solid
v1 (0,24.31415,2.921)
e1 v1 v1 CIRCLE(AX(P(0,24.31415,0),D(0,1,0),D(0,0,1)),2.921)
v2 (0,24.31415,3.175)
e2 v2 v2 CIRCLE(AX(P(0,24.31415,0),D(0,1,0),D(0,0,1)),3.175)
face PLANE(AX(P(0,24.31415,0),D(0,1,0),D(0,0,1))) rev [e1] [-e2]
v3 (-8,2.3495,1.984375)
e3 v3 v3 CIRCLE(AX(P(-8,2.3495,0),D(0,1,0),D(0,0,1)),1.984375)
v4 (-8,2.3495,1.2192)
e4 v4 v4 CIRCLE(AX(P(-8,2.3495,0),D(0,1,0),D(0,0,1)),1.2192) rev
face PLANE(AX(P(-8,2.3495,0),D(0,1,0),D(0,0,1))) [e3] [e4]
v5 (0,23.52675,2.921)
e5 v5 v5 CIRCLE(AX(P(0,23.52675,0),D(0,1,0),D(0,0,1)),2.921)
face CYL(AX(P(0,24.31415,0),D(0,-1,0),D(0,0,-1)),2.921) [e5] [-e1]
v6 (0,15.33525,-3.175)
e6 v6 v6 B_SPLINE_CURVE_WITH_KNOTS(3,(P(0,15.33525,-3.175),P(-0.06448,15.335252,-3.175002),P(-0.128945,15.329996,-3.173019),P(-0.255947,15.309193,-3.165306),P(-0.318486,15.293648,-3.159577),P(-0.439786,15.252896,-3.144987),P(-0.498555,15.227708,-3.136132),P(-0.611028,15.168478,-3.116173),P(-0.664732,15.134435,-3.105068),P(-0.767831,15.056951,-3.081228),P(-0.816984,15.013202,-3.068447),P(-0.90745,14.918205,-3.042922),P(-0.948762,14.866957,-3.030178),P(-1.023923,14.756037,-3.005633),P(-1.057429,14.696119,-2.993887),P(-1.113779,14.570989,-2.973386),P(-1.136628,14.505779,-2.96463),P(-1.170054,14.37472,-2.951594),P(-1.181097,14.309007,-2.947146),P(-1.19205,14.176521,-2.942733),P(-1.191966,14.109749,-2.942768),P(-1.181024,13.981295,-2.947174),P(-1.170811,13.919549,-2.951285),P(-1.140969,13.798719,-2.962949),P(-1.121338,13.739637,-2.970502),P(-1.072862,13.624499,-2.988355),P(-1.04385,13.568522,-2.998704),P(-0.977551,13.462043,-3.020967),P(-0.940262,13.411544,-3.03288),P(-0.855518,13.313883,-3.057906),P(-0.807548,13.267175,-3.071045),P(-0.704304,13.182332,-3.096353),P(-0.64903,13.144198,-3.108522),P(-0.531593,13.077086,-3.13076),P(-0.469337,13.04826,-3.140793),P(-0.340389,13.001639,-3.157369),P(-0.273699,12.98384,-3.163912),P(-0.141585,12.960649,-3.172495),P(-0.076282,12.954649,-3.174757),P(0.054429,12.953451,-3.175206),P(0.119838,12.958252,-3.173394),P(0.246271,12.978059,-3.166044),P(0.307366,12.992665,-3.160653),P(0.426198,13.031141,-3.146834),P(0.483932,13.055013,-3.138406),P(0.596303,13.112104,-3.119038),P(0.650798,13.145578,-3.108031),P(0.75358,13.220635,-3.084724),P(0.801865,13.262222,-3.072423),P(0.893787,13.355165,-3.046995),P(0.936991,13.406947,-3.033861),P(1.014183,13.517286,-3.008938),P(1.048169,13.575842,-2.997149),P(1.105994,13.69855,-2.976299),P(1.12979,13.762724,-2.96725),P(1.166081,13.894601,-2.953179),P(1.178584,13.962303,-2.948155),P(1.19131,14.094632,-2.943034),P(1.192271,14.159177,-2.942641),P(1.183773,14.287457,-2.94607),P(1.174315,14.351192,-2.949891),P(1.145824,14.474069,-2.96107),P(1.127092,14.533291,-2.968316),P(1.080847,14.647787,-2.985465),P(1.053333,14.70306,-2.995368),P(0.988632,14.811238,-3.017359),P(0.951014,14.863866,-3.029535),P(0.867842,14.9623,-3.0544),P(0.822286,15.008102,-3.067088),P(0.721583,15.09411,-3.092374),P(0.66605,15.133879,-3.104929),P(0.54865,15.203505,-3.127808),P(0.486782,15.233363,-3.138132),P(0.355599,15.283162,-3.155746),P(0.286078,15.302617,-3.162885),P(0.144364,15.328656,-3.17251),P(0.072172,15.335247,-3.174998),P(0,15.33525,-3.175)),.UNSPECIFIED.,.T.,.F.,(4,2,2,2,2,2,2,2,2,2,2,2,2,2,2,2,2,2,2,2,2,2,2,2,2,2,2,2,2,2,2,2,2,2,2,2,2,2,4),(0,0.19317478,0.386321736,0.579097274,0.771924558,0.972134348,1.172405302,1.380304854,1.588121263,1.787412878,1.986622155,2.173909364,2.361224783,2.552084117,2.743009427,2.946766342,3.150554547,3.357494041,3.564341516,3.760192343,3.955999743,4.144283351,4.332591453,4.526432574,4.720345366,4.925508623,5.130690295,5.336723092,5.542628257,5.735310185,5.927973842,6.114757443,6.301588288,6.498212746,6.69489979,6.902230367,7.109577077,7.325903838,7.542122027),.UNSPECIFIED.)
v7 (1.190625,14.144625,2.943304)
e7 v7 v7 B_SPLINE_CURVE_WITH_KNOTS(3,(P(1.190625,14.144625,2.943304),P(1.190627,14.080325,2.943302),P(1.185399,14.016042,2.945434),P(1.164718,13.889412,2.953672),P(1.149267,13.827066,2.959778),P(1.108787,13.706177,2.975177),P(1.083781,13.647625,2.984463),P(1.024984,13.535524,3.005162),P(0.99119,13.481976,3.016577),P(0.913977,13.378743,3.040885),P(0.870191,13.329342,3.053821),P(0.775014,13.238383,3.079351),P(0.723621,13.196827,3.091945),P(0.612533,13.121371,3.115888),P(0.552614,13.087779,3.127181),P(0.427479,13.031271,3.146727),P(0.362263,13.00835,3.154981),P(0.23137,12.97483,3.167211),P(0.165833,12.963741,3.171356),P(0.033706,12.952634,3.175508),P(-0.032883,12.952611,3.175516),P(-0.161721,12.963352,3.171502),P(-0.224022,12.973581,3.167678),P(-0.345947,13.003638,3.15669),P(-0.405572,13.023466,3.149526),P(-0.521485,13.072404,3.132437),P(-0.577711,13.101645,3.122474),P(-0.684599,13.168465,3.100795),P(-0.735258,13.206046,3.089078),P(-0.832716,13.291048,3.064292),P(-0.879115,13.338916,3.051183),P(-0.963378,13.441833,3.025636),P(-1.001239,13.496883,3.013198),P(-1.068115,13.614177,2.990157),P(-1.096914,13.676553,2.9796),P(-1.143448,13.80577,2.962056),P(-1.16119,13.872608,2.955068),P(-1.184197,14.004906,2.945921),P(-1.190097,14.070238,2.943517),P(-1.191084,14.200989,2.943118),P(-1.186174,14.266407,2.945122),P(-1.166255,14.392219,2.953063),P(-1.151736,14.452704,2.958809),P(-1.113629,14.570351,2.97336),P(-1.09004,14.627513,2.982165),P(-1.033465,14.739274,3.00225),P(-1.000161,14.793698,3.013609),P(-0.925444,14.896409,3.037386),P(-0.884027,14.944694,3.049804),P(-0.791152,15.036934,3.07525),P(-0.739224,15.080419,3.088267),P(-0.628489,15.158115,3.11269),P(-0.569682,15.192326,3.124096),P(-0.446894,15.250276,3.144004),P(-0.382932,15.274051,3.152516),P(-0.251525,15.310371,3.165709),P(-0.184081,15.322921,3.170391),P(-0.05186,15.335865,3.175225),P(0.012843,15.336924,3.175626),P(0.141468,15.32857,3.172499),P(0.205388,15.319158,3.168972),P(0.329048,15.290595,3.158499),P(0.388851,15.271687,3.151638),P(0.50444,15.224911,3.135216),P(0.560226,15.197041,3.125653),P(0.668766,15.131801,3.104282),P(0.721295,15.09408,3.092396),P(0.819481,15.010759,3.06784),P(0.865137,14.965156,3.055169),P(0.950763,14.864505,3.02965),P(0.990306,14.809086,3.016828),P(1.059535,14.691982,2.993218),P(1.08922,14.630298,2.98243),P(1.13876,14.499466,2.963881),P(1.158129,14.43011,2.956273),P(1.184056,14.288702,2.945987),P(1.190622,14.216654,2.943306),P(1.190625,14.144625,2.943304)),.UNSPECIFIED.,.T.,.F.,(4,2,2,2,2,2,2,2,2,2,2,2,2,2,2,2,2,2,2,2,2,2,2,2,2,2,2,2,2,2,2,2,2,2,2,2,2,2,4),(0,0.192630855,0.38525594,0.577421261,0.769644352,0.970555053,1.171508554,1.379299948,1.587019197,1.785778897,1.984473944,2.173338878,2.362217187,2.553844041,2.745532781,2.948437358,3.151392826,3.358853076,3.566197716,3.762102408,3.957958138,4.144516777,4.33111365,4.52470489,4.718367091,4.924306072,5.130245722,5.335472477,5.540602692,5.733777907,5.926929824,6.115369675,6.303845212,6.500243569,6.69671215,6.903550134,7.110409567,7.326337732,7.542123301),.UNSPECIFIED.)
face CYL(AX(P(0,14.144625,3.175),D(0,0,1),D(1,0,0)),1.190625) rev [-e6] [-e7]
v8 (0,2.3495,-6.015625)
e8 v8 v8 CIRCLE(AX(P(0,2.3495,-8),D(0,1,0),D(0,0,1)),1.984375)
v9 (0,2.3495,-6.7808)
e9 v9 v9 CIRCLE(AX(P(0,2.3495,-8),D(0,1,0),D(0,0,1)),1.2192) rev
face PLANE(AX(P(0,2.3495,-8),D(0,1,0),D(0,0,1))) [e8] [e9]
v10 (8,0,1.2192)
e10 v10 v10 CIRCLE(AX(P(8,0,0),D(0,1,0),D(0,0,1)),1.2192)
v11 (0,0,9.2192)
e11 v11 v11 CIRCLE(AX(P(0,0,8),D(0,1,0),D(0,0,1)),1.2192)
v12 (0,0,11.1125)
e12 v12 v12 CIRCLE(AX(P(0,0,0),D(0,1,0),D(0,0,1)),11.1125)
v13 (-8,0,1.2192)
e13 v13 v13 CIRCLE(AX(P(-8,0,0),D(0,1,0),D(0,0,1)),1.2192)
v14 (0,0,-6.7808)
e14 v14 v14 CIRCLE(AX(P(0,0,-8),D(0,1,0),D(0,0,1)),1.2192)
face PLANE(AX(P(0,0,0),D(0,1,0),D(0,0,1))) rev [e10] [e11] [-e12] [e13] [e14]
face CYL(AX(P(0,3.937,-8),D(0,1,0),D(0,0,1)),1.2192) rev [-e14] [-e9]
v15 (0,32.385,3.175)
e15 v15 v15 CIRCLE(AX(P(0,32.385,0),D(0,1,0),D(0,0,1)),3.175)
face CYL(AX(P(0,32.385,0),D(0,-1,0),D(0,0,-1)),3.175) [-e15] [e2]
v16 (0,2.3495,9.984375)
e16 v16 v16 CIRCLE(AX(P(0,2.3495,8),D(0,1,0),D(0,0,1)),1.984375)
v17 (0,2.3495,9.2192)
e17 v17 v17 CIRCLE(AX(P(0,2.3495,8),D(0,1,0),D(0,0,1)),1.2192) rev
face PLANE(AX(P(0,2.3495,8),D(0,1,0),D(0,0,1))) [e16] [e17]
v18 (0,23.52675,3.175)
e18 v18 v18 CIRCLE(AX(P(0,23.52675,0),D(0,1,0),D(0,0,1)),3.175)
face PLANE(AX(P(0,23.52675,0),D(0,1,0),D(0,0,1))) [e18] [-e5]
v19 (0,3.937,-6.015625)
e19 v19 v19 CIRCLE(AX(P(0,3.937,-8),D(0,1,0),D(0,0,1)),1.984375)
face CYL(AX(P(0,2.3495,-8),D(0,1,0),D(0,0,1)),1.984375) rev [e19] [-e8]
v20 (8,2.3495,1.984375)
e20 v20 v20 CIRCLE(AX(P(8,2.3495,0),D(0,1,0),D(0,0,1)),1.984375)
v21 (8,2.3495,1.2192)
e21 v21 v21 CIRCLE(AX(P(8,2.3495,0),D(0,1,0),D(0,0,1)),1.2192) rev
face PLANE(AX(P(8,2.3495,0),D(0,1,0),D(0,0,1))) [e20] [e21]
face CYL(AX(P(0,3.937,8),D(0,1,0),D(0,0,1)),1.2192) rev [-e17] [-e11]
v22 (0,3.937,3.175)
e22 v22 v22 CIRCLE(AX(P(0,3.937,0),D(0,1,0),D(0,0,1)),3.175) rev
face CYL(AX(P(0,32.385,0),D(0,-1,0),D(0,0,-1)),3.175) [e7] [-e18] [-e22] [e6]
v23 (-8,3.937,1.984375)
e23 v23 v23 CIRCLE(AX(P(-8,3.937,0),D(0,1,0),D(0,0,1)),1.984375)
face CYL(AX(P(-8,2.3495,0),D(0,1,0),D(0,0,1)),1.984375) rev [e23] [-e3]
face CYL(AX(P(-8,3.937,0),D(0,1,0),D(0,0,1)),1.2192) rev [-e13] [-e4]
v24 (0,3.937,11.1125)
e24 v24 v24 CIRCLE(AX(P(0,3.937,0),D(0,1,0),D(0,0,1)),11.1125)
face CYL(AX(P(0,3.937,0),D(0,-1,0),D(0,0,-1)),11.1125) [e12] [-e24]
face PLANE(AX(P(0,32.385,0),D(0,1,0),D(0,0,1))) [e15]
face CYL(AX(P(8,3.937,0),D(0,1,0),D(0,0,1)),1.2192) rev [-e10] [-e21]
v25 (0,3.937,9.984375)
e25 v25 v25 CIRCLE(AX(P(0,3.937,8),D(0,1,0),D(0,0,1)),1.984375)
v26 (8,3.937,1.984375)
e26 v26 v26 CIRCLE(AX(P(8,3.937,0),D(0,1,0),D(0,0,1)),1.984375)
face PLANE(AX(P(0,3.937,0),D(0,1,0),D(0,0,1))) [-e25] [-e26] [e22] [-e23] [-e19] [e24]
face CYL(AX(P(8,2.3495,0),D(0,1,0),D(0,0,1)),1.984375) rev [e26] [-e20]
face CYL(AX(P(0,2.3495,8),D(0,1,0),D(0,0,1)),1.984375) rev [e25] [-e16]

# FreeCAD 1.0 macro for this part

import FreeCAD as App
import Part
import Sketcher

V = App.Vector
Q = App.Units.Quantity

doc = App.newDocument("Part")
body = doc.addObject("PartDesign::Body", "Body")

# Sketch on XZ plane
sketch1 = doc.addObject("Sketcher::SketchObject", "Sketch")
body.addObject(sketch1)
sketch1.AttachmentSupport = (doc.XZ_Plane, [""])
sketch1.MapMode = "FlatFace"
sketch1.addGeometry(Part.Circle(V(0, 0, 0), V(0, 0, 1), 11), False)
sketch1.addConstraint([
    Sketcher.Constraint("Coincident", 0, 3, -1, 1),
    Sketcher.Constraint("Diameter", 0, Q("0.875 in")),
])
pad1 = doc.addObject("PartDesign::Pad", "Pad")
body.addObject(pad1)
pad1.Profile = sketch1
pad1.Length = Q("0.155 in")
pad1.Reversed = True

# Sketch on XZ plane
sketch2 = doc.addObject("Sketcher::SketchObject", "Sketch001")
body.addObject(sketch2)
sketch2.AttachmentSupport = (doc.XZ_Plane, [""])
sketch2.MapMode = "FlatFace"
sketch2.addGeometry(Part.Circle(V(0, 0, 0), V(0, 0, 1), 3.2), False)
sketch2.addConstraint([
    Sketcher.Constraint("Coincident", 0, 3, -1, 1),
    Sketcher.Constraint("Diameter", 0, Q("0.25 in")),
])
pad2 = doc.addObject("PartDesign::Pad", "Pad001")
body.addObject(pad2)
pad2.Profile = sketch2
pad2.Length = Q("1.275 in")
pad2.Reversed = True

# Sketch on XZ plane
sketch3 = doc.addObject("Sketcher::SketchObject", "Sketch002")
body.addObject(sketch3)
sketch3.AttachmentSupport = (doc.XZ_Plane, [""])
sketch3.MapMode = "FlatFace"
sketch3.AttachmentOffset = App.Placement(V(0, 0, -0.155 * 25.4), App.Rotation())
sketch3.addGeometry([
    Part.Circle(V(0, 8, 0), V(0, 0, 1), 1.2),
    Part.Circle(V(0, -8, 0), V(0, 0, 1), 1.2),
    Part.Circle(V(-8, 0, 0), V(0, 0, 1), 1.2),
    Part.Circle(V(8, 0, 0), V(0, 0, 1), 1.2),
], False)
sketch3.addConstraint([
    Sketcher.Constraint("Equal", 0, 1),
    Sketcher.Constraint("Equal", 1, 2),
    Sketcher.Constraint("Equal", 2, 3),
    Sketcher.Constraint("Symmetric", 0, 3, 1, 3, -1, 1),
    Sketcher.Constraint("Symmetric", 2, 3, 3, 3, -1, 1),
    Sketcher.Constraint("PointOnObject", 0, 3, -2),
    Sketcher.Constraint("PointOnObject", 2, 3, -1),
    Sketcher.Constraint("Diameter", 0, Q("0.096 in")),
    Sketcher.Constraint("DistanceY", -1, 1, 0, 3, 8.0),
    Sketcher.Constraint("DistanceX", 2, 3, -1, 1, 8.0),
])
doc.recompute()
hole = doc.addObject("PartDesign::Hole", "Hole")
body.addObject(hole)
hole.Profile = sketch3
hole.ThreadType = "None"
hole.Diameter = Q("0.096 in")
hole.DepthType = "ThroughAll"
hole.Reversed = True

# Sketch on XZ plane
sketch4 = doc.addObject("Sketcher::SketchObject", "Sketch003")
body.addObject(sketch4)
sketch4.AttachmentSupport = (doc.XZ_Plane, [""])
sketch4.MapMode = "FlatFace"
sketch4.AttachmentOffset = App.Placement(V(0, 0, -0.155 * 25.4), App.Rotation())
sketch4.addGeometry([
    Part.Circle(V(0, 8, 0), V(0, 0, 1), 2),
    Part.Circle(V(8, 0, 0), V(0, 0, 1), 2),
    Part.Circle(V(0, -8, 0), V(0, 0, 1), 2),
    Part.Circle(V(-8, 0, 0), V(0, 0, 1), 2),
], False)
sketch4.addConstraint([
    Sketcher.Constraint("Equal", 0, 1),
    Sketcher.Constraint("Equal", 1, 2),
    Sketcher.Constraint("Equal", 2, 3),
    Sketcher.Constraint("Symmetric", 0, 3, 2, 3, -1, 1),
    Sketcher.Constraint("Symmetric", 1, 3, 3, 3, -1, 1),
    Sketcher.Constraint("PointOnObject", 0, 3, -2),
    Sketcher.Constraint("PointOnObject", 1, 3, -1),
    Sketcher.Constraint("Diameter", 0, Q("0.15625 in")),
    Sketcher.Constraint("DistanceY", -1, 1, 0, 3, 8.0),
    Sketcher.Constraint("DistanceX", -1, 1, 1, 3, 8.0),
])
pocket1 = doc.addObject("PartDesign::Pocket", "Pocket")
body.addObject(pocket1)
pocket1.Profile = sketch4
pocket1.Length = Q("0.0625 in")
pocket1.Reversed = True

# Sketch on XY plane
sketch5 = doc.addObject("Sketcher::SketchObject", "Sketch004")
body.addObject(sketch5)
sketch5.AttachmentSupport = (doc.XY_Plane, [""])
sketch5.MapMode = "FlatFace"
sketch5.AttachmentOffset = App.Placement(V(0, 0, 0.125 * 25.4), App.Rotation())
sketch5.addGeometry(Part.Circle(V(0, 14.1, 0), V(0, 0, 1), 1.2), False)
sketch5.addConstraint([
    Sketcher.Constraint("PointOnObject", 0, 3, -2),
    Sketcher.Constraint("Diameter", 0, Q("0.09375 in")),
    Sketcher.Constraint("DistanceY", -1, 1, 0, 3, 14.144625),
])
doc.recompute()
hole2 = doc.addObject("PartDesign::Hole", "Hole001")
body.addObject(hole2)
hole2.Profile = sketch5
hole2.ThreadType = "None"
hole2.Diameter = Q("0.09375 in")
hole2.DepthType = "ThroughAll"

# Sketch on XZ plane
sketch6 = doc.addObject("Sketcher::SketchObject", "Sketch005")
body.addObject(sketch6)
sketch6.AttachmentSupport = (doc.XZ_Plane, [""])
sketch6.MapMode = "FlatFace"
sketch6.AttachmentOffset = App.Placement(V(0, 0, -23.52675), App.Rotation())
sketch6.addGeometry([
    Part.Circle(V(0, 0, 0), V(0, 0, 1), 3.2),
    Part.Circle(V(0, 0, 0), V(0, 0, 1), 2.9),
], False)
sketch6.addConstraint([
    Sketcher.Constraint("Coincident", 0, 3, -1, 1),
    Sketcher.Constraint("Coincident", 1, 3, -1, 1),
    Sketcher.Constraint("Diameter", 0, Q("0.25 in")),
    Sketcher.Constraint("Diameter", 1, Q("0.23 in")),
])
pocket2 = doc.addObject("PartDesign::Pocket", "Pocket001")
body.addObject(pocket2)
pocket2.Profile = sketch6
pocket2.Length = Q("0.031 in")

doc.recompute()
